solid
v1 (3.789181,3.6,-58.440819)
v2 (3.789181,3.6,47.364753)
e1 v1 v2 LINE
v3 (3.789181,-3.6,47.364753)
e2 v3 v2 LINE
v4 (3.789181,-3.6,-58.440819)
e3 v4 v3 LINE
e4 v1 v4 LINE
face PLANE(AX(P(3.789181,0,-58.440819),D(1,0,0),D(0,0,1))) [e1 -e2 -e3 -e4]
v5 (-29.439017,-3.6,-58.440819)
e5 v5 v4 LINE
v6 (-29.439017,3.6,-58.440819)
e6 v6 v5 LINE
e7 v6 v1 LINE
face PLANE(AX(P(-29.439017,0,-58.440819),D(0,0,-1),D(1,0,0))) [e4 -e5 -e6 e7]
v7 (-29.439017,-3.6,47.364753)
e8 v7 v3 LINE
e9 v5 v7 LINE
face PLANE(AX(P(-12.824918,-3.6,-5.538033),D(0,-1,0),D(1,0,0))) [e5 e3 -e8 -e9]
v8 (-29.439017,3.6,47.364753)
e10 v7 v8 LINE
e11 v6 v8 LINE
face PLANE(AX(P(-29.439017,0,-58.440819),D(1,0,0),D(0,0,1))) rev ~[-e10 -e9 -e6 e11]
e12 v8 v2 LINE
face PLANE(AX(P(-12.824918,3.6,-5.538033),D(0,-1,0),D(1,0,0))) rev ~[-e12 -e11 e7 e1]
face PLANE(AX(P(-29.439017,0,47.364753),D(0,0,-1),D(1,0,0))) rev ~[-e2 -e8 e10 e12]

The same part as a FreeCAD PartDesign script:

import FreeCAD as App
import Part
import Sketcher

V = App.Vector
Q = App.Units.Quantity

doc = App.newDocument("Part")
body = doc.addObject("PartDesign::Body", "Body")

# Sketch on XZ plane
sketch1 = doc.addObject("Sketcher::SketchObject", "Sketch")
body.addObject(sketch1)
sketch1.AttachmentSupport = (doc.XZ_Plane, [""])
sketch1.MapMode = "FlatFace"
sketch1.addGeometry([
    Part.LineSegment(V(-29, 47, 0), V(-29, -58, 0)),
    Part.LineSegment(V(-29, -58, 0), V(4, -58, 0)),
    Part.LineSegment(V(4, -58, 0), V(4, 47, 0)),
    Part.LineSegment(V(4, 47, 0), V(-29, 47, 0)),
], False)
sketch1.addConstraint([
    Sketcher.Constraint("Coincident", 0, 2, 1, 1),
    Sketcher.Constraint("Coincident", 1, 2, 2, 1),
    Sketcher.Constraint("Coincident", 2, 2, 3, 1),
    Sketcher.Constraint("Coincident", 3, 2, 0, 1),
    Sketcher.Constraint("Vertical", 0),
    Sketcher.Constraint("Horizontal", 1),
    Sketcher.Constraint("Vertical", 2),
    Sketcher.Constraint("Horizontal", 3),
    Sketcher.Constraint("DistanceY", 0, 2, 0, 1, Q("105.805572 mm")),
    Sketcher.Constraint("DistanceX", 1, 1, 1, 2, Q("33.228198 mm")),
    Sketcher.Constraint("DistanceY", 0, 2, -1, 1, Q("58.440819 mm")),
    Sketcher.Constraint("DistanceX", -1, 1, 1, 2, Q("3.789181 mm")),
])
pad1 = doc.addObject("PartDesign::Pad", "Pad")
body.addObject(pad1)
pad1.Profile = sketch1
pad1.Length = 7.2
pad1.Midplane = True

doc.recompute()
